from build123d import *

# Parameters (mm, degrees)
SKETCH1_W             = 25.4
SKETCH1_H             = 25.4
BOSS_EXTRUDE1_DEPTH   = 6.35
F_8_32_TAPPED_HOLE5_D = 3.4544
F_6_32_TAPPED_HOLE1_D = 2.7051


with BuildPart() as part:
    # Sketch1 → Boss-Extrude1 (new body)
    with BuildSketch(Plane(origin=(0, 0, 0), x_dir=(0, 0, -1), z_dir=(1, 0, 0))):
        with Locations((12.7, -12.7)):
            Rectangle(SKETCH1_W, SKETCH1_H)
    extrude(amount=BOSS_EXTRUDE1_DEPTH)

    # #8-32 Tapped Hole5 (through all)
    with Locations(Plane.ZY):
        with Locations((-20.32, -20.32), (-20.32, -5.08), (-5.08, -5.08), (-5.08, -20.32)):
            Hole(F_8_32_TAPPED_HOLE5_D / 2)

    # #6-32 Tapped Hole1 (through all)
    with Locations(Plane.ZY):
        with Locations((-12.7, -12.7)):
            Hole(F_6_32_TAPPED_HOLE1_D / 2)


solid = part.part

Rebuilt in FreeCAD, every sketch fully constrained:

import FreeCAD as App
import Part
import Sketcher
Q = App.Units.Quantity

doc = App.newDocument("Part")
body = doc.addObject("PartDesign::Body", "Body")

# Sketch on YZ plane
sketch1 = doc.addObject("Sketcher::SketchObject", "Sketch")
body.addObject(sketch1)
sketch1.AttachmentSupport = (doc.YZ_Plane, [""])
sketch1.MapMode = "FlatFace"
sketch1.addGeometry([
    Part.LineSegment(App.Vector(0, 0, 0), App.Vector(-25, 0, 0)),
    Part.LineSegment(App.Vector(-25, 0, 0), App.Vector(-25, -25, 0)),
    Part.LineSegment(App.Vector(-25, -25, 0), App.Vector(0, -25, 0)),
    Part.LineSegment(App.Vector(0, -25, 0), App.Vector(0, 0, 0)),
], False)
sketch1.addConstraint([
    Sketcher.Constraint("Coincident", 0, 2, 1, 1),
    Sketcher.Constraint("Coincident", 1, 2, 2, 1),
    Sketcher.Constraint("Coincident", 2, 2, 3, 1),
    Sketcher.Constraint("Coincident", 3, 2, 0, 1),
    Sketcher.Constraint("Horizontal", 0),
    Sketcher.Constraint("Vertical", 1),
    Sketcher.Constraint("Horizontal", 2),
    Sketcher.Constraint("Vertical", 3),
    Sketcher.Constraint("Coincident", 3, 2, -1, 1),
    Sketcher.Constraint("Equal", 2, 1),
    Sketcher.Constraint("DistanceX", 0, 2, 0, 1, Q("1 in")),
])
pad1 = doc.addObject("PartDesign::Pad", "Pad")
body.addObject(pad1)
pad1.Profile = sketch1
pad1.Length = Q("0.25 in")

# Sketch on YZ plane
sketch2 = doc.addObject("Sketcher::SketchObject", "Sketch001")
body.addObject(sketch2)
sketch2.AttachmentSupport = (doc.YZ_Plane, [""])
sketch2.MapMode = "FlatFace"
sketch2.addGeometry([
    Part.Circle(App.Vector(-20.3, -20.3, 0), App.Vector(0, 0, 1), 1.7),
    Part.Circle(App.Vector(-5.1, -20.3, 0), App.Vector(0, 0, 1), 1.7),
    Part.Circle(App.Vector(-5.1, -5.1, 0), App.Vector(0, 0, 1), 1.7),
    Part.Circle(App.Vector(-20.3, -5.1, 0), App.Vector(0, 0, 1), 1.7),
], False)
sketch2.addConstraint([
    Sketcher.Constraint("Equal", 0, 1),
    Sketcher.Constraint("Equal", 1, 2),
    Sketcher.Constraint("Equal", 2, 3),
    Sketcher.Constraint("Horizontal", 0, 3, 1, 3),
    Sketcher.Constraint("Horizontal", 2, 3, 3, 3),
    Sketcher.Constraint("Vertical", 1, 3, 2, 3),
    Sketcher.Constraint("Vertical", 0, 3, 3, 3),
    Sketcher.Constraint("Diameter", 0, Q("0.136 in")),
    Sketcher.Constraint("DistanceX", 0, 3, -1, 1, Q("0.8 in")),
    Sketcher.Constraint("DistanceY", 0, 3, -1, 1, Q("0.8 in")),
    Sketcher.Constraint("DistanceX", 1, 3, -1, 1, Q("0.2 in")),
    Sketcher.Constraint("DistanceY", 2, 3, -1, 1, Q("0.2 in")),
])
doc.recompute()
hole = doc.addObject("PartDesign::Hole", "Hole")
body.addObject(hole)
hole.Profile = sketch2
hole.ThreadType = "None"
hole.Diameter = Q("0.136 in")
hole.DepthType = "ThroughAll"
hole.Reversed = True

# Sketch on YZ plane
sketch3 = doc.addObject("Sketcher::SketchObject", "Sketch002")
body.addObject(sketch3)
sketch3.AttachmentSupport = (doc.YZ_Plane, [""])
sketch3.MapMode = "FlatFace"
sketch3.addGeometry(Part.Circle(App.Vector(-12.7, -12.7, 0), App.Vector(0, 0, 1), 1.4), False)
sketch3.addConstraint([
    Sketcher.Constraint("Diameter", 0, Q("0.1065 in")),
    Sketcher.Constraint("DistanceX", 0, 3, -1, 1, Q("0.5 in")),
    Sketcher.Constraint("DistanceY", 0, 3, -1, 1, Q("0.5 in")),
])
doc.recompute()
hole2 = doc.addObject("PartDesign::Hole", "Hole001")
body.addObject(hole2)
hole2.Profile = sketch3
hole2.ThreadType = "None"
hole2.Diameter = Q("0.1065 in")
hole2.DepthType = "ThroughAll"
hole2.Reversed = True

doc.recompute()
